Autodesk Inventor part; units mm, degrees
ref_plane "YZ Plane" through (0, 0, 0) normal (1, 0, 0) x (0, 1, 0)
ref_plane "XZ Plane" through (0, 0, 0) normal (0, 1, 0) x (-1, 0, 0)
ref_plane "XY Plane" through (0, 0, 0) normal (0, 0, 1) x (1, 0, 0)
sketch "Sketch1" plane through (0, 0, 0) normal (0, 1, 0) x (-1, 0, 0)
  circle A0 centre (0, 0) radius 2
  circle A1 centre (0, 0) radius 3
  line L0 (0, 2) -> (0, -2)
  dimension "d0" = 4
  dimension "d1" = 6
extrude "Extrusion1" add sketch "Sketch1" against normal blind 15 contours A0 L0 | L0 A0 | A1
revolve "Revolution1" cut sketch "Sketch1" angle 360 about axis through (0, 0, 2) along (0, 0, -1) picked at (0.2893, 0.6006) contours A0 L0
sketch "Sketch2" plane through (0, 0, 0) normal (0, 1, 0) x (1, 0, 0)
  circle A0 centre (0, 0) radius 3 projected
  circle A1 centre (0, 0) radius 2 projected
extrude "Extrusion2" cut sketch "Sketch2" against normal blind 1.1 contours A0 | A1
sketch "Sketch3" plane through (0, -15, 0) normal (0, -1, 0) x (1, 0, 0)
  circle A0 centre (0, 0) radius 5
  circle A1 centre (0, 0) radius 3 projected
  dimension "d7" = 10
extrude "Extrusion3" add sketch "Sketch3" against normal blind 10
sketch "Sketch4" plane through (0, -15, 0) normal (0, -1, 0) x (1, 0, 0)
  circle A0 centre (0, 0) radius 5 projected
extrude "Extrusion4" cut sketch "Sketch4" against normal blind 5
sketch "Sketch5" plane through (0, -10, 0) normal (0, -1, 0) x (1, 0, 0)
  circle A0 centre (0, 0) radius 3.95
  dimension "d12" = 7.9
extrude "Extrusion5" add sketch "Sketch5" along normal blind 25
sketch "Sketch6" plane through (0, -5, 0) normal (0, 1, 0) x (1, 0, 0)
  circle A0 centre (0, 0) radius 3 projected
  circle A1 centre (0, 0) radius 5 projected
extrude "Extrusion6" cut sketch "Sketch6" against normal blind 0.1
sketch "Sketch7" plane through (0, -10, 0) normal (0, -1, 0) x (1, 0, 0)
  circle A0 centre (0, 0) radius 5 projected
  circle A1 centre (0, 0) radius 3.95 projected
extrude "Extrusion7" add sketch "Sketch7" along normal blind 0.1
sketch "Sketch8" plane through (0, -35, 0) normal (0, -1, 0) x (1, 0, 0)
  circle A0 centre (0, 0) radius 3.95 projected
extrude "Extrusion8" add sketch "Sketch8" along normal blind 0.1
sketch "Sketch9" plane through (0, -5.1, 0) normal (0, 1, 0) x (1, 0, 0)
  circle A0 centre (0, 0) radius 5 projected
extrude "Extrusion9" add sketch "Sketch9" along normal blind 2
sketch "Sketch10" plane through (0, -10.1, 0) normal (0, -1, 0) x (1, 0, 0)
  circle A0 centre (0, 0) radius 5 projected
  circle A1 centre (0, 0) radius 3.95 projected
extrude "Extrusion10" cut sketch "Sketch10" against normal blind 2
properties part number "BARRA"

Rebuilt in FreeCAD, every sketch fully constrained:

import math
import FreeCAD as App
import Part
import Sketcher

doc = App.newDocument("Part")
params = doc.addObject("Spreadsheet::Sheet", "Params")
for row, (alias, value) in enumerate([
    ("sketch1_diameter", "6 mm"),
    ("pad1_length", "15 mm"),
    ("sketch2_radius", "2 mm"),
    ("groove_angle", "360 deg"),
    ("sketch3_diameter", "6 mm"),
    ("pocket1_length", "1.1 mm"),
    ("sketch4_diameter", "10 mm"),
    ("sketch4_diameter2", "6 mm"),
    ("pad2_length", "10 mm"),
    ("sketch5_diameter", "10 mm"),
    ("pocket2_length", "5 mm"),
    ("sketch6_diameter", "7.9 mm"),
    ("pad3_length", "25 mm"),
    ("sketch7_diameter", "10 mm"),
    ("sketch7_diameter2", "6 mm"),
    ("pocket3_length", "0.1 mm"),
    ("sketch8_diameter", "10 mm"),
    ("sketch8_diameter2", "7.9 mm"),
    ("pad4_length", "0.1 mm"),
    ("sketch9_diameter", "7.9 mm"),
    ("pad5_length", "0.1 mm"),
    ("sketch10_diameter", "10 mm"),
    ("pad6_length", "2 mm"),
    ("sketch11_diameter", "10 mm"),
    ("sketch11_diameter2", "7.9 mm"),
    ("pocket4_length", "2 mm"),
], start=1):
    params.set(f"A{row}", alias)
    params.set(f"B{row}", "=" + value)
    params.setAlias(f"B{row}", alias)

body = doc.addObject("PartDesign::Body", "Body")

# Sketch on XZ plane
sketch1 = doc.addObject("Sketcher::SketchObject", "Sketch")
body.addObject(sketch1)
sketch1.AttachmentSupport = (doc.XZ_Plane, [""])
sketch1.MapMode = "FlatFace"
sketch1.addGeometry(Part.Circle(App.Vector(0, 0, 0), App.Vector(0, 0, 1), 3), False)
sketch1.addConstraint([
    Sketcher.Constraint("Coincident", 0, 3, -1, 1),
    Sketcher.Constraint("Diameter", 0, 6.0),
])
sketch1.setExpression("Constraints[1]", "Params.sketch1_diameter")
pad1 = doc.addObject("PartDesign::Pad", "Pad")
body.addObject(pad1)
pad1.Profile = sketch1
pad1.setExpression("Length", "Params.pad1_length")

# Sketch on XZ plane
sketch2 = doc.addObject("Sketcher::SketchObject", "Sketch001")
body.addObject(sketch2)
sketch2.AttachmentSupport = (doc.XZ_Plane, [""])
sketch2.MapMode = "FlatFace"
sketch2.addGeometry([
    Part.ArcOfCircle(Part.Circle(App.Vector(0, 0, 0), App.Vector(0, 0, 1), 2), math.radians(90), math.radians(270)),
    Part.LineSegment(App.Vector(0, 2, 0), App.Vector(0, -2, 0)),
], False)
sketch2.addConstraint([
    Sketcher.Constraint("Coincident", 0, 1, 1, 1),
    Sketcher.Constraint("Coincident", 1, 2, 0, 2),
    Sketcher.Constraint("Vertical", 1),
    Sketcher.Constraint("Coincident", 0, 3, -1, 1),
    Sketcher.Constraint("PointOnObject", 0, 1, -2),
    Sketcher.Constraint("Radius", 0, 2.0),
])
sketch2.setExpression("Constraints[5]", "Params.sketch2_radius")
groove = doc.addObject("PartDesign::Groove", "Groove")
body.addObject(groove)
groove.Profile = sketch2
groove.ReferenceAxis = (sketch2, ["V_Axis"])
groove.setExpression("Angle", "Params.groove_angle")

# Sketch on XZ plane
sketch3 = doc.addObject("Sketcher::SketchObject", "Sketch002")
body.addObject(sketch3)
sketch3.AttachmentSupport = (doc.XZ_Plane, [""])
sketch3.MapMode = "FlatFace"
sketch3.addGeometry(Part.Circle(App.Vector(0, 0, 0), App.Vector(0, 0, 1), 3), False)
sketch3.addConstraint([
    Sketcher.Constraint("Coincident", 0, 3, -1, 1),
    Sketcher.Constraint("Diameter", 0, 6.0),
])
sketch3.setExpression("Constraints[1]", "Params.sketch3_diameter")
pocket1 = doc.addObject("PartDesign::Pocket", "Pocket")
body.addObject(pocket1)
pocket1.Profile = sketch3
pocket1.setExpression("Length", "Params.pocket1_length")
pocket1.Reversed = True

# Sketch on XZ plane
sketch4 = doc.addObject("Sketcher::SketchObject", "Sketch003")
body.addObject(sketch4)
sketch4.AttachmentSupport = (doc.XZ_Plane, [""])
sketch4.MapMode = "FlatFace"
sketch4.AttachmentOffset = App.Placement(App.Vector(0, 0, 15), App.Rotation())
sketch4.addGeometry([
    Part.Circle(App.Vector(0, 0, 0), App.Vector(0, 0, 1), 5),
    Part.Circle(App.Vector(0, 0, 0), App.Vector(0, 0, 1), 3),
], False)
sketch4.addConstraint([
    Sketcher.Constraint("Coincident", 0, 3, -1, 1),
    Sketcher.Constraint("Coincident", 1, 3, -1, 1),
    Sketcher.Constraint("Diameter", 0, 10.0),
    Sketcher.Constraint("Diameter", 1, 6.0),
])
sketch4.setExpression("Constraints[2]", "Params.sketch4_diameter")
sketch4.setExpression("Constraints[3]", "Params.sketch4_diameter2")
pad2 = doc.addObject("PartDesign::Pad", "Pad001")
body.addObject(pad2)
pad2.Profile = sketch4
pad2.setExpression("Length", "Params.pad2_length")
pad2.Reversed = True

# Sketch on XZ plane
sketch5 = doc.addObject("Sketcher::SketchObject", "Sketch004")
body.addObject(sketch5)
sketch5.AttachmentSupport = (doc.XZ_Plane, [""])
sketch5.MapMode = "FlatFace"
sketch5.AttachmentOffset = App.Placement(App.Vector(0, 0, 15), App.Rotation())
sketch5.addGeometry(Part.Circle(App.Vector(0, 0, 0), App.Vector(0, 0, 1), 5), False)
sketch5.addConstraint([
    Sketcher.Constraint("Coincident", 0, 3, -1, 1),
    Sketcher.Constraint("Diameter", 0, 10.0),
])
sketch5.setExpression("Constraints[1]", "Params.sketch5_diameter")
pocket2 = doc.addObject("PartDesign::Pocket", "Pocket001")
body.addObject(pocket2)
pocket2.Profile = sketch5
pocket2.setExpression("Length", "Params.pocket2_length")

# Sketch on XZ plane
sketch6 = doc.addObject("Sketcher::SketchObject", "Sketch005")
body.addObject(sketch6)
sketch6.AttachmentSupport = (doc.XZ_Plane, [""])
sketch6.MapMode = "FlatFace"
sketch6.AttachmentOffset = App.Placement(App.Vector(0, 0, 10), App.Rotation())
sketch6.addGeometry(Part.Circle(App.Vector(0, 0, 0), App.Vector(0, 0, 1), 4), False)
sketch6.addConstraint([
    Sketcher.Constraint("Coincident", 0, 3, -1, 1),
    Sketcher.Constraint("Diameter", 0, 7.9),
])
sketch6.setExpression("Constraints[1]", "Params.sketch6_diameter")
pad3 = doc.addObject("PartDesign::Pad", "Pad002")
body.addObject(pad3)
pad3.Profile = sketch6
pad3.setExpression("Length", "Params.pad3_length")

# Sketch on XZ plane
sketch7 = doc.addObject("Sketcher::SketchObject", "Sketch006")
body.addObject(sketch7)
sketch7.AttachmentSupport = (doc.XZ_Plane, [""])
sketch7.MapMode = "FlatFace"
sketch7.AttachmentOffset = App.Placement(App.Vector(0, 0, 5), App.Rotation())
sketch7.addGeometry([
    Part.Circle(App.Vector(0, 0, 0), App.Vector(0, 0, 1), 5),
    Part.Circle(App.Vector(0, 0, 0), App.Vector(0, 0, 1), 3),
], False)
sketch7.addConstraint([
    Sketcher.Constraint("Coincident", 0, 3, -1, 1),
    Sketcher.Constraint("Coincident", 1, 3, -1, 1),
    Sketcher.Constraint("Diameter", 0, 10.0),
    Sketcher.Constraint("Diameter", 1, 6.0),
])
sketch7.setExpression("Constraints[2]", "Params.sketch7_diameter")
sketch7.setExpression("Constraints[3]", "Params.sketch7_diameter2")
pocket3 = doc.addObject("PartDesign::Pocket", "Pocket002")
body.addObject(pocket3)
pocket3.Profile = sketch7
pocket3.setExpression("Length", "Params.pocket3_length")
pocket3.Reversed = True

# Sketch on XZ plane
sketch8 = doc.addObject("Sketcher::SketchObject", "Sketch007")
body.addObject(sketch8)
sketch8.AttachmentSupport = (doc.XZ_Plane, [""])
sketch8.MapMode = "FlatFace"
sketch8.AttachmentOffset = App.Placement(App.Vector(0, 0, 10), App.Rotation())
sketch8.addGeometry([
    Part.Circle(App.Vector(0, 0, 0), App.Vector(0, 0, 1), 5),
    Part.Circle(App.Vector(0, 0, 0), App.Vector(0, 0, 1), 4),
], False)
sketch8.addConstraint([
    Sketcher.Constraint("Coincident", 0, 3, -1, 1),
    Sketcher.Constraint("Coincident", 1, 3, -1, 1),
    Sketcher.Constraint("Diameter", 0, 10.0),
    Sketcher.Constraint("Diameter", 1, 7.9),
])
sketch8.setExpression("Constraints[2]", "Params.sketch8_diameter")
sketch8.setExpression("Constraints[3]", "Params.sketch8_diameter2")
pad4 = doc.addObject("PartDesign::Pad", "Pad003")
body.addObject(pad4)
pad4.Profile = sketch8
pad4.setExpression("Length", "Params.pad4_length")

# Sketch on XZ plane
sketch9 = doc.addObject("Sketcher::SketchObject", "Sketch008")
body.addObject(sketch9)
sketch9.AttachmentSupport = (doc.XZ_Plane, [""])
sketch9.MapMode = "FlatFace"
sketch9.AttachmentOffset = App.Placement(App.Vector(0, 0, 35), App.Rotation())
sketch9.addGeometry(Part.Circle(App.Vector(0, 0, 0), App.Vector(0, 0, 1), 4), False)
sketch9.addConstraint([
    Sketcher.Constraint("Coincident", 0, 3, -1, 1),
    Sketcher.Constraint("Diameter", 0, 7.9),
])
sketch9.setExpression("Constraints[1]", "Params.sketch9_diameter")
pad5 = doc.addObject("PartDesign::Pad", "Pad004")
body.addObject(pad5)
pad5.Profile = sketch9
pad5.setExpression("Length", "Params.pad5_length")

# Sketch on XZ plane
sketch10 = doc.addObject("Sketcher::SketchObject", "Sketch009")
body.addObject(sketch10)
sketch10.AttachmentSupport = (doc.XZ_Plane, [""])
sketch10.MapMode = "FlatFace"
sketch10.AttachmentOffset = App.Placement(App.Vector(0, 0, 5.1), App.Rotation())
sketch10.addGeometry(Part.Circle(App.Vector(0, 0, 0), App.Vector(0, 0, 1), 5), False)
sketch10.addConstraint([
    Sketcher.Constraint("Coincident", 0, 3, -1, 1),
    Sketcher.Constraint("Diameter", 0, 10.0),
])
sketch10.setExpression("Constraints[1]", "Params.sketch10_diameter")
pad6 = doc.addObject("PartDesign::Pad", "Pad005")
body.addObject(pad6)
pad6.Profile = sketch10
pad6.setExpression("Length", "Params.pad6_length")
pad6.Reversed = True

# Sketch on XZ plane
sketch11 = doc.addObject("Sketcher::SketchObject", "Sketch010")
body.addObject(sketch11)
sketch11.AttachmentSupport = (doc.XZ_Plane, [""])
sketch11.MapMode = "FlatFace"
sketch11.AttachmentOffset = App.Placement(App.Vector(0, 0, 10.1), App.Rotation())
sketch11.addGeometry([
    Part.Circle(App.Vector(0, 0, 0), App.Vector(0, 0, 1), 5),
    Part.Circle(App.Vector(0, 0, 0), App.Vector(0, 0, 1), 4),
], False)
sketch11.addConstraint([
    Sketcher.Constraint("Coincident", 0, 3, -1, 1),
    Sketcher.Constraint("Coincident", 1, 3, -1, 1),
    Sketcher.Constraint("Diameter", 0, 10.0),
    Sketcher.Constraint("Diameter", 1, 7.9),
])
sketch11.setExpression("Constraints[2]", "Params.sketch11_diameter")
sketch11.setExpression("Constraints[3]", "Params.sketch11_diameter2")
pocket4 = doc.addObject("PartDesign::Pocket", "Pocket003")
body.addObject(pocket4)
pocket4.Profile = sketch11
pocket4.setExpression("Length", "Params.pocket4_length")

doc.recompute()
